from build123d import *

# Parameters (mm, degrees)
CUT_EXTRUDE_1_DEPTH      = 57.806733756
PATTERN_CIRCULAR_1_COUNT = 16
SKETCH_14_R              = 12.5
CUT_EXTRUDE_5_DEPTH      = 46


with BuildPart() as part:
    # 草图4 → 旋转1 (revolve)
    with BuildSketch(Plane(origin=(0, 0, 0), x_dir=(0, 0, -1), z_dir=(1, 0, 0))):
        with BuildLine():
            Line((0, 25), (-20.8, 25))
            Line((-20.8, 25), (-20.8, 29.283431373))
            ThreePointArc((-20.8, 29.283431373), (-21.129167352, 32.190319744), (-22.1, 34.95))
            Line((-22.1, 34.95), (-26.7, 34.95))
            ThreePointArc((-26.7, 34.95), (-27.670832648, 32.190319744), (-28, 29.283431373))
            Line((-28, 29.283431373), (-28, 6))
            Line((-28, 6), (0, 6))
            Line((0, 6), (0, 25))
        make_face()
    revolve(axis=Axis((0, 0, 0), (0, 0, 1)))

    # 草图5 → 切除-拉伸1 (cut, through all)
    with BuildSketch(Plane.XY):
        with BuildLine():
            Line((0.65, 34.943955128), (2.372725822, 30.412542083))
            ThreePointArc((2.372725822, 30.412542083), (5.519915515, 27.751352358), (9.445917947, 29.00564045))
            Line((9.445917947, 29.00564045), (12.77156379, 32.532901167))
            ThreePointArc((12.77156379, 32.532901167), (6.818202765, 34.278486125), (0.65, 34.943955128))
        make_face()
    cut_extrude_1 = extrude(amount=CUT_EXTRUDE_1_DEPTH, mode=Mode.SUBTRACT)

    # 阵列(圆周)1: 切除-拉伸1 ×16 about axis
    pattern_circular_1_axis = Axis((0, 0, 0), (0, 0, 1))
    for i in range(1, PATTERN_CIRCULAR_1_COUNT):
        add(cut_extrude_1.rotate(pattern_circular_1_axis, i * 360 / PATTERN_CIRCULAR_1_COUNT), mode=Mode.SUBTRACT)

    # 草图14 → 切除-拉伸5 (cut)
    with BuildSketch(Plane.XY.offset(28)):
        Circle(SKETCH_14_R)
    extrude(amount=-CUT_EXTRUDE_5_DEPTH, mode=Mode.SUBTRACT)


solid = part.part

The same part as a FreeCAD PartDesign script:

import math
import FreeCAD as App
import Part
import Sketcher
from FreeCAD import Vector
Q = App.Units.Quantity

doc = App.newDocument("Part")
body = doc.addObject("PartDesign::Body", "Body")

sketch1 = doc.addObject("Sketcher::SketchObject", "Sketch")
body.addObject(sketch1)
sketch1.AttachmentSupport = (doc.YZ_Plane, [""])
sketch1.MapMode = "FlatFace"
sketch1.addGeometry(Part.LineSegment(Vector(25, 0, 0), Vector(25, 20.8, 0)), False)
sketch1.addGeometry(Part.LineSegment(Vector(25, 20.8, 0), Vector(29.283431, 20.8, 0)), False)
sketch1.addGeometry(Part.ArcOfCircle(Part.Circle(Vector(29.283431, 33.8, 0), Vector(0, 0, 1), 13), math.radians(-90), math.radians(-64.158067)), False)
sketch1.addGeometry(Part.LineSegment(Vector(34.95, 22.1, 0), Vector(34.95, 26.7, 0)), False)
sketch1.addGeometry(Part.ArcOfCircle(Part.Circle(Vector(29.283431, 15, 0), Vector(0, 0, 1), 13), math.radians(64.158067), math.radians(90)), False)
sketch1.addGeometry(Part.LineSegment(Vector(29.283431, 28, 0), Vector(6, 28, 0)), False)
sketch1.addGeometry(Part.LineSegment(Vector(6, 28, 0), Vector(6, 0, 0)), False)
sketch1.addGeometry(Part.LineSegment(Vector(6, 0, 0), Vector(25, 0, 0)), False)
sketch1.addConstraint(Sketcher.Constraint("Coincident", 0, 2, 1, 1))
sketch1.addConstraint(Sketcher.Constraint("Tangent", 1, 2, 2, 1))
sketch1.addConstraint(Sketcher.Constraint("Coincident", 2, 2, 3, 1))
sketch1.addConstraint(Sketcher.Constraint("Coincident", 3, 2, 4, 1))
sketch1.addConstraint(Sketcher.Constraint("Tangent", 4, 2, 5, 1))
sketch1.addConstraint(Sketcher.Constraint("Coincident", 5, 2, 6, 1))
sketch1.addConstraint(Sketcher.Constraint("Coincident", 6, 2, 7, 1))
sketch1.addConstraint(Sketcher.Constraint("Coincident", 7, 2, 0, 1))
sketch1.addConstraint(Sketcher.Constraint("Vertical", 0))
sketch1.addConstraint(Sketcher.Constraint("Horizontal", 1))
sketch1.addConstraint(Sketcher.Constraint("Vertical", 3))
sketch1.addConstraint(Sketcher.Constraint("Horizontal", 5))
sketch1.addConstraint(Sketcher.Constraint("Vertical", 6))
sketch1.addConstraint(Sketcher.Constraint("Horizontal", 7))
sketch1.addConstraint(Sketcher.Constraint("Equal", 2, 4))
sketch1.addConstraint(Sketcher.Constraint("PointOnObject", 6, 2, -1))
sketch1.addConstraint(Sketcher.Constraint("Vertical", 2, 3, 4, 3))
sketch1.addConstraint(Sketcher.Constraint("Radius", 2, Q("13 mm")))
sketch1.addConstraint(Sketcher.Constraint("DistanceX", 7, 1, 7, 2, Q("19 mm")))
sketch1.addConstraint(Sketcher.Constraint("DistanceY", 6, 2, 6, 1, Q("28 mm")))
sketch1.addConstraint(Sketcher.Constraint("DistanceY", 0, 1, 0, 2, Q("20.8 mm")))
sketch1.addConstraint(Sketcher.Constraint("DistanceY", 3, 1, 3, 2, Q("4.6 mm")))
sketch1.addConstraint(Sketcher.Constraint("DistanceX", -1, 1, 0, 2, Q("25 mm")))
sketch1.addConstraint(Sketcher.Constraint("DistanceX", -1, 1, 2, 2, Q("34.95 mm")))
revolution = doc.addObject("PartDesign::Revolution", "Revolution")
body.addObject(revolution)
revolution.Profile = sketch1
revolution.ReferenceAxis = (sketch1, ["V_Axis"])
revolution.Angle = 360

sketch2 = doc.addObject("Sketcher::SketchObject", "Sketch001")
body.addObject(sketch2)
sketch2.AttachmentSupport = (doc.XY_Plane, [""])
sketch2.MapMode = "FlatFace"
sketch2.addGeometry(Part.LineSegment(Vector(0.65, 34.943955, 0), Vector(2.372726, 30.412542, 0)), False)
sketch2.addGeometry(Part.ArcOfCircle(Part.Circle(Vector(6.35, 31.924599, 0), Vector(0, 0, 1), 4.255), math.radians(-159.184494), math.radians(-43.314825)), False)
sketch2.addGeometry(Part.LineSegment(Vector(9.445918, 29.00564, 0), Vector(12.771564, 32.532901, 0)), False)
sketch2.addGeometry(Part.ArcOfCircle(Part.Circle(Vector(0, 0, 0), Vector(0, 0, 1), 34.95), math.radians(68.56633), math.radians(88.934352)), False)
sketch2.addConstraint(Sketcher.Constraint("Tangent", 0, 2, 1, 1))
sketch2.addConstraint(Sketcher.Constraint("Tangent", 1, 2, 2, 1))
sketch2.addConstraint(Sketcher.Constraint("Coincident", 2, 2, 3, 1))
sketch2.addConstraint(Sketcher.Constraint("Coincident", 3, 2, 0, 1))
sketch2.addConstraint(Sketcher.Constraint("Coincident", 3, 3, -1, 1))
sketch2.addConstraint(Sketcher.Constraint("Equal", 0, 2))
sketch2.addConstraint(Sketcher.Constraint("Radius", 3, Q("34.95 mm")))
sketch2.addConstraint(Sketcher.Constraint("Radius", 1, Q("4.255 mm")))
sketch2.addConstraint(Sketcher.Constraint("DistanceX", 3, 2, 1, 3, Q("5.7 mm")))
sketch2.addConstraint(Sketcher.Constraint("DistanceX", -1, 1, 1, 3, Q("6.35 mm")))
sketch2.addConstraint(Sketcher.Constraint("DistanceY", -1, 1, 1, 3, Q("31.924599 mm")))
pocket1 = doc.addObject("PartDesign::Pocket", "Pocket")
body.addObject(pocket1)
pocket1.Profile = sketch2
pocket1.Type = "ThroughAll"
pocket1.Reversed = True
doc.recompute()

polarpattern = doc.addObject("PartDesign::PolarPattern", "PolarPattern")
body.addObject(polarpattern)
polarpattern.Originals = [pocket1]
polarpattern.Axis = (doc.Z_Axis, [""])
polarpattern.Angle = 360
polarpattern.Occurrences = 16
body.Tip = polarpattern

sketch3 = doc.addObject("Sketcher::SketchObject", "Sketch002")
body.addObject(sketch3)
sketch3.AttachmentSupport = (doc.XY_Plane, [""])
sketch3.MapMode = "FlatFace"
sketch3.AttachmentOffset = App.Placement(Vector(0, 0, 28), App.Rotation())
sketch3.addGeometry(Part.Circle(Vector(0, 0, 0), Vector(0, 0, 1), 12.5), False)
sketch3.addConstraint(Sketcher.Constraint("Coincident", 0, 3, -1, 1))
sketch3.addConstraint(Sketcher.Constraint("Diameter", 0, Q("25 mm")))
pocket2 = doc.addObject("PartDesign::Pocket", "Pocket001")
body.addObject(pocket2)
pocket2.Profile = sketch3
pocket2.Length = 46

doc.recompute()
